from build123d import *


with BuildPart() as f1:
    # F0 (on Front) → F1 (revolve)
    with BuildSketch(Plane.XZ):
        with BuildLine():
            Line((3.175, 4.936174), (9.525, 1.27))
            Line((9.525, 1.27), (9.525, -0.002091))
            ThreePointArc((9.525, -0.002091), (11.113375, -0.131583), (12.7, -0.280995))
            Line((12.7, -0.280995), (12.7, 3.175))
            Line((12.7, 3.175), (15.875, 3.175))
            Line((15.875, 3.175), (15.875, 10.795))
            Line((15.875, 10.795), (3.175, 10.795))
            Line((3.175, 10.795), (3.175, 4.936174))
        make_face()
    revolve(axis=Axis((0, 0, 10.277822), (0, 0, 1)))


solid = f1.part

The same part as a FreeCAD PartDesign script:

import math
import FreeCAD as App
import Part
import Sketcher

V = App.Vector
Q = App.Units.Quantity

doc = App.newDocument("Part")
params = doc.addObject("Spreadsheet::Sheet", "Params")
for row, (alias, value) in enumerate([
    ("sketch1_width", "0.5 in"),
    ("sketch1_height", "0.3 in"),
    ("sketch1_width2", "0.125 in"),
    ("revolution_angle", "360 deg"),
], start=1):
    params.set(f"A{row}", alias)
    params.set(f"B{row}", "=" + value)
    params.setAlias(f"B{row}", alias)

body = doc.addObject("PartDesign::Body", "Body")

# Sketch on XZ plane
sketch1 = body.newObject("Sketcher::SketchObject", "Sketch")
sketch1.AttachmentSupport = (doc.getObject("XZ_Plane"), [""])
sketch1.MapMode = "FlatFace"
sketch1.addGeometry([
    Part.LineSegment(V(3.2, 4.9, 0), V(9.5, 1.3, 0)),  # 0
    Part.LineSegment(V(9.5, 1.3, 0), V(9.5, 0, 0)),  # 1
    Part.ArcOfCircle(Part.Circle(V(0, -126.7, 0), V(0, 0, 1), 127), math.radians(84.26), math.radians(85.7)),  # 2
    Part.LineSegment(V(12.7, -0.3, 0), V(12.7, 3.2, 0)),  # 3
    Part.LineSegment(V(12.7, 3.2, 0), V(15.9, 3.2, 0)),  # 4
    Part.LineSegment(V(15.9, 3.2, 0), V(15.9, 10.8, 0)),  # 5
    Part.LineSegment(V(15.9, 10.8, 0), V(3.2, 10.8, 0)),  # 6
    Part.LineSegment(V(3.2, 10.8, 0), V(3.2, 4.9, 0)),  # 7
], False)
sketch1.addConstraint([
    Sketcher.Constraint("Coincident", 0, 2, 1, 1),
    Sketcher.Constraint("Coincident", 1, 2, 2, 2),
    Sketcher.Constraint("Coincident", 2, 1, 3, 1),
    Sketcher.Constraint("Coincident", 3, 2, 4, 1),
    Sketcher.Constraint("Coincident", 4, 2, 5, 1),
    Sketcher.Constraint("Coincident", 5, 2, 6, 1),
    Sketcher.Constraint("Coincident", 6, 2, 7, 1),
    Sketcher.Constraint("Coincident", 7, 2, 0, 1),
    Sketcher.Constraint("Vertical", 1),
    Sketcher.Constraint("Vertical", 3),
    Sketcher.Constraint("Horizontal", 4),
    Sketcher.Constraint("Vertical", 5),
    Sketcher.Constraint("Horizontal", 6),
    Sketcher.Constraint("Vertical", 7),
    Sketcher.Constraint("DistanceX", 6, 2, 6, 1, Q("0.5 in")),
    Sketcher.Constraint("DistanceY", 5, 1, 5, 2, Q("0.3 in")),
    Sketcher.Constraint("Angle", 0, Q("-29.999999 deg")),
    Sketcher.Constraint("DistanceX", -1, 1, 2, 1, Q("0.5 in")),
    Sketcher.Constraint("DistanceX", 4, 1, 4, 2, Q("0.125 in")),
    Sketcher.Constraint("DistanceY", -1, 1, 0, 2, Q("0.05 in")),
    Sketcher.Constraint("DistanceX", 0, 2, 4, 2, Q("0.25 in")),
    Sketcher.Constraint("DistanceY", -1, 1, 3, 2, Q("0.125 in")),
    Sketcher.Constraint("Radius", 2, 127.005969),
    Sketcher.Constraint("DistanceY", 1, 2, 1, 1, 1.272091),
    Sketcher.Constraint("DistanceY", 3, 1, 3, 2, 3.455995),
])
sketch1.setExpression("Constraints[14]", "Params.sketch1_width")
sketch1.setExpression("Constraints[15]", "Params.sketch1_height")
sketch1.setExpression("Constraints[18]", "Params.sketch1_width2")
revolution = body.newObject("PartDesign::Revolution", "Revolution")
revolution.Profile = sketch1
revolution.ReferenceAxis = (sketch1, ["V_Axis"])
revolution.setExpression("Angle", "Params.revolution_angle")

doc.recompute()
